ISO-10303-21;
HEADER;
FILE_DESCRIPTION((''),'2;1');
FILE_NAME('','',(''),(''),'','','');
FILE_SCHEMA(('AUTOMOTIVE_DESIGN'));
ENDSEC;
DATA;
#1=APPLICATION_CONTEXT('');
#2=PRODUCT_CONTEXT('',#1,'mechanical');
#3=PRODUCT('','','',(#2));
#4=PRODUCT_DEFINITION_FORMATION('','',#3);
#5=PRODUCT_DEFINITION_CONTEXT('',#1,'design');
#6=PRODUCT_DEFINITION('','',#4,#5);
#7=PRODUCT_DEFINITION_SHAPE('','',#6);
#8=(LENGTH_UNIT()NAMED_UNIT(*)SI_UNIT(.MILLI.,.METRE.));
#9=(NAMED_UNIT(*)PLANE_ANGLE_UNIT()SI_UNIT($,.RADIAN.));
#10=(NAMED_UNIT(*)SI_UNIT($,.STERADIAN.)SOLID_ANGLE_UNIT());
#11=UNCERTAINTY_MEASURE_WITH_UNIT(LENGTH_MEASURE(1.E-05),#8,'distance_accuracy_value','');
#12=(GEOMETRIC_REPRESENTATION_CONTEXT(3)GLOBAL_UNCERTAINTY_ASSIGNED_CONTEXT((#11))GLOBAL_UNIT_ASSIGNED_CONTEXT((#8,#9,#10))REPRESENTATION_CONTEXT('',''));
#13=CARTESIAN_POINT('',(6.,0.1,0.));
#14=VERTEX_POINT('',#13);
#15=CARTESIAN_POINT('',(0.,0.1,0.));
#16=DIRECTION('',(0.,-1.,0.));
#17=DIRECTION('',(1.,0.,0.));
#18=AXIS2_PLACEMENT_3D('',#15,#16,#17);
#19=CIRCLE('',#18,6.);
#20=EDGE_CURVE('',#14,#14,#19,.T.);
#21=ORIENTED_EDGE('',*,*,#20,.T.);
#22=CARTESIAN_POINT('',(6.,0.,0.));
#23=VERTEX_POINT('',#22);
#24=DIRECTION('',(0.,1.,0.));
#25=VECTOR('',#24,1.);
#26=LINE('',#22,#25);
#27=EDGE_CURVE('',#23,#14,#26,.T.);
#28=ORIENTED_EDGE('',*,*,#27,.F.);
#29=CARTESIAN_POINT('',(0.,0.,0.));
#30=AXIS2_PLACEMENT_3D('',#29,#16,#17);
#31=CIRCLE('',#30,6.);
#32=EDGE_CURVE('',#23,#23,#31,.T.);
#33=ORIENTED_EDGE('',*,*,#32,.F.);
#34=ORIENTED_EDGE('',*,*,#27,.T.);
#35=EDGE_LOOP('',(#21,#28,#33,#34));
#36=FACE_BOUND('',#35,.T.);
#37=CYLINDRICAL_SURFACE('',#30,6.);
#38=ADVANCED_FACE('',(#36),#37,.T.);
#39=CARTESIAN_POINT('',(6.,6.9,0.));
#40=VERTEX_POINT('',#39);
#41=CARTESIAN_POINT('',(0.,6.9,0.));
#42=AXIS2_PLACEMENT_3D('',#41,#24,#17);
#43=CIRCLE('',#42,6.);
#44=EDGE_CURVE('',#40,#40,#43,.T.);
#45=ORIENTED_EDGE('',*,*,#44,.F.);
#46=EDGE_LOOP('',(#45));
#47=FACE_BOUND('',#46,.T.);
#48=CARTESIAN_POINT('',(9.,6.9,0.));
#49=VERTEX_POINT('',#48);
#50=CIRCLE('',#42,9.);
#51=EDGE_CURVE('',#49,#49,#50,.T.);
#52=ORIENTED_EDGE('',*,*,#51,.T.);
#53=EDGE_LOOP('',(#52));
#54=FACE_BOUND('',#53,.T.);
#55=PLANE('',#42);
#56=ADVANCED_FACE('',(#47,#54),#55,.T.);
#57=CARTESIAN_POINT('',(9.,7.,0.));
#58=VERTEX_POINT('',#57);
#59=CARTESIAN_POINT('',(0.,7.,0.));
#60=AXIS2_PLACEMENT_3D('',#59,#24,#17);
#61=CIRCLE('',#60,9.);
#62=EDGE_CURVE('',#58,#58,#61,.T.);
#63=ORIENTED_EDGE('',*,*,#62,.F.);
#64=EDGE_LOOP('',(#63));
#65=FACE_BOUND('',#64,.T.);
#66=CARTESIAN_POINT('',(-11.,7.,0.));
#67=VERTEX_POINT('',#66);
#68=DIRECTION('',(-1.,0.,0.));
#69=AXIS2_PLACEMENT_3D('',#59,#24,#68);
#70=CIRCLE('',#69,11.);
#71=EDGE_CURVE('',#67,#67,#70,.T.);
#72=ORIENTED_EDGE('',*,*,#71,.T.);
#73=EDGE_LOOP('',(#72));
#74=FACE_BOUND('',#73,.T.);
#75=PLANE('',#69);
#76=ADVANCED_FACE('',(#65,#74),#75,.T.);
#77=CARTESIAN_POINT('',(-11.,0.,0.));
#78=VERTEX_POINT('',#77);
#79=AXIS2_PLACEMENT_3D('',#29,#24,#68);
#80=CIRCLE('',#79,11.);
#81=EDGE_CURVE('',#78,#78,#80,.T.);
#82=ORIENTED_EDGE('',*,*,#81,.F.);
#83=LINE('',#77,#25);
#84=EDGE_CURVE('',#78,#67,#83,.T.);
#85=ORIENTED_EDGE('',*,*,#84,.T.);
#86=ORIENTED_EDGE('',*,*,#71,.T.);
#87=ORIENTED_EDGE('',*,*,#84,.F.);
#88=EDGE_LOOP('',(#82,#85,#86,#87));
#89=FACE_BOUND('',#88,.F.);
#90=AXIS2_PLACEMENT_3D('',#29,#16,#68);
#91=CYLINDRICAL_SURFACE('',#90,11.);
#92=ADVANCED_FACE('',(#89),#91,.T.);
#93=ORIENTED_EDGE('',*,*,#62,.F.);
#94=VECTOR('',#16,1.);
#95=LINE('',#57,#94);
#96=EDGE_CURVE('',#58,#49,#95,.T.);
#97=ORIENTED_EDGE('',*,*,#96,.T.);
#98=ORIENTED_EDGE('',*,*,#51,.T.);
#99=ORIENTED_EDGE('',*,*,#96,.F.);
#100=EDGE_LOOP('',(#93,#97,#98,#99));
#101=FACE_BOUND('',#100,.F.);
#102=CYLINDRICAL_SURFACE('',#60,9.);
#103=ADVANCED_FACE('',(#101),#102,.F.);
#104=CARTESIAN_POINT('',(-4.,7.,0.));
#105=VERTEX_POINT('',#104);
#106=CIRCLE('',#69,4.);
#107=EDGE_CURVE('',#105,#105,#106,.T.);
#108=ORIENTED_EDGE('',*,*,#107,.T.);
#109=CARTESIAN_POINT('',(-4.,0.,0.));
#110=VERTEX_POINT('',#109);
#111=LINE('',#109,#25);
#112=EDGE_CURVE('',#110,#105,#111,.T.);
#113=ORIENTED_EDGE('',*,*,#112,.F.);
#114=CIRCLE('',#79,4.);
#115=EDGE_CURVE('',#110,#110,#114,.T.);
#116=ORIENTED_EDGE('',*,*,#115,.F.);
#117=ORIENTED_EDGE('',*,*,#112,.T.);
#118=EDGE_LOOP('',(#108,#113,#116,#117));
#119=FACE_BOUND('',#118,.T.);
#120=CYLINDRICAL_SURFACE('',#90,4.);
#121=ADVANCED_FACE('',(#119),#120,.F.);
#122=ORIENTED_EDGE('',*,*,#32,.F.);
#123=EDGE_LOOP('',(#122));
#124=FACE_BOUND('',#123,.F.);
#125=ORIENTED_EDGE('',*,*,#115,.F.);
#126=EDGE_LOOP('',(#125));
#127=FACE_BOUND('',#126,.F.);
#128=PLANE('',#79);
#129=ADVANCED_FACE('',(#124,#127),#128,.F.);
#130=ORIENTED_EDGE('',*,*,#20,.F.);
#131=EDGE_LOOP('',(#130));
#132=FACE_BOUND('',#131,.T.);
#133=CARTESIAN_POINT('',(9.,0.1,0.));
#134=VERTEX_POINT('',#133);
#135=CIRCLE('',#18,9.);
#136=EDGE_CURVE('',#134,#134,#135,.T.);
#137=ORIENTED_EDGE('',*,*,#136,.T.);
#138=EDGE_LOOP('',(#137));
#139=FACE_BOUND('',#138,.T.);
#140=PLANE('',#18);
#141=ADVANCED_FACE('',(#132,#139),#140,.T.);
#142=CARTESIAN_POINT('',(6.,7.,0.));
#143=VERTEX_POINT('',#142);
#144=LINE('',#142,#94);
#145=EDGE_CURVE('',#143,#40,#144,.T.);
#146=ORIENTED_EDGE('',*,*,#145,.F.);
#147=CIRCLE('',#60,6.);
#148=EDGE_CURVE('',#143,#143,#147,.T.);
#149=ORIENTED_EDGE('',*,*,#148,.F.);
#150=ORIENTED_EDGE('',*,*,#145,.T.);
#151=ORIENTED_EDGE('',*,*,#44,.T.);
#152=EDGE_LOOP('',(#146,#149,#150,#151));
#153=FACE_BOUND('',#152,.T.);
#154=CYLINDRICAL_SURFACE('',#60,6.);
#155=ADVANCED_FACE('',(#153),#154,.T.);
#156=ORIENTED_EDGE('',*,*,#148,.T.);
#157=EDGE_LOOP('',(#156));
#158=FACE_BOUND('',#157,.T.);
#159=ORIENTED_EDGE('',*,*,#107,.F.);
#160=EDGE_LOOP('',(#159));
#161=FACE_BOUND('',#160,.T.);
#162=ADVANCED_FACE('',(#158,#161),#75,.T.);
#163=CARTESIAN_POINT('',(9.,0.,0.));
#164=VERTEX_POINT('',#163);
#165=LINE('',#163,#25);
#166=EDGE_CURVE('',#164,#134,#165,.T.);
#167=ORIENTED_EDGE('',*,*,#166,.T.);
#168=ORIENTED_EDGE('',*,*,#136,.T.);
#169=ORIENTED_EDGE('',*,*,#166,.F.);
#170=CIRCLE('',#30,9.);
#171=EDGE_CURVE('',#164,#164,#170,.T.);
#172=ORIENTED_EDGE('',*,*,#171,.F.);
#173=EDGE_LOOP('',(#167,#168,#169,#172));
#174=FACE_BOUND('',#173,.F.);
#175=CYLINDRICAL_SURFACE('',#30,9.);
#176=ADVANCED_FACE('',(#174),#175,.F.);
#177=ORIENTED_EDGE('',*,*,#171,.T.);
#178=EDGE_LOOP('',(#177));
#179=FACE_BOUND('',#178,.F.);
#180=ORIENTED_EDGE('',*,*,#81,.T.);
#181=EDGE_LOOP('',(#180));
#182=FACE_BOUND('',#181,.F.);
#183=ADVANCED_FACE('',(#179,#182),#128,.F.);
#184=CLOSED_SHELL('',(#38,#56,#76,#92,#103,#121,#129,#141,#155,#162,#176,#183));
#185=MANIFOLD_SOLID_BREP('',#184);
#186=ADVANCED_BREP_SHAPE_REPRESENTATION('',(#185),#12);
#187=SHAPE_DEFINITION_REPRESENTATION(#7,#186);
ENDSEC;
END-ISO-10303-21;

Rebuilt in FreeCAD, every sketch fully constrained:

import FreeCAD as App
import Part
import Sketcher

V = App.Vector
Q = App.Units.Quantity

doc = App.newDocument("Part")
body = doc.addObject("PartDesign::Body", "Body")

sketch1 = doc.addObject("Sketcher::SketchObject", "Sketch")
body.addObject(sketch1)
sketch1.AttachmentSupport = (doc.XZ_Plane, [""])
sketch1.MapMode = "FlatFace"
sketch1.addGeometry([
    Part.Circle(V(0, 0, 0), V(0, 0, 1), 11),
    Part.Circle(V(0, 0, 0), V(0, 0, 1), 4),
], False)
sketch1.addConstraint([
    Sketcher.Constraint("Coincident", 0, 3, -1, 1),
    Sketcher.Constraint("Coincident", 1, 3, -1, 1),
    Sketcher.Constraint("Diameter", 0, Q("22 mm")),
    Sketcher.Constraint("Diameter", 1, Q("8 mm")),
])
pad1 = doc.addObject("PartDesign::Pad", "Pad")
body.addObject(pad1)
pad1.Profile = sketch1
pad1.Length = 7
pad1.Reversed = True

sketch2 = doc.addObject("Sketcher::SketchObject", "Sketch001")
body.addObject(sketch2)
sketch2.AttachmentSupport = (doc.XZ_Plane, [""])
sketch2.MapMode = "FlatFace"
sketch2.AttachmentOffset = App.Placement(V(0, 0, -7), App.Rotation())
sketch2.addGeometry([
    Part.Circle(V(0, 0, 0), V(0, 0, 1), 9),
    Part.Circle(V(0, 0, 0), V(0, 0, 1), 6),
], False)
sketch2.addConstraint([
    Sketcher.Constraint("Coincident", 0, 3, -1, 1),
    Sketcher.Constraint("Coincident", 1, 3, -1, 1),
    Sketcher.Constraint("Diameter", 0, Q("18 mm")),
    Sketcher.Constraint("Diameter", 1, Q("12 mm")),
])
pocket1 = doc.addObject("PartDesign::Pocket", "Pocket")
body.addObject(pocket1)
pocket1.Profile = sketch2
pocket1.Length = 0.1
pocket1.Reversed = True

sketch3 = doc.addObject("Sketcher::SketchObject", "Sketch002")
body.addObject(sketch3)
sketch3.AttachmentSupport = (doc.XZ_Plane, [""])
sketch3.MapMode = "FlatFace"
sketch3.addGeometry([
    Part.Circle(V(0, 0, 0), V(0, 0, 1), 9),
    Part.Circle(V(0, 0, 0), V(0, 0, 1), 6),
], False)
sketch3.addConstraint([
    Sketcher.Constraint("Coincident", 0, 3, -1, 1),
    Sketcher.Constraint("Coincident", 1, 3, -1, 1),
    Sketcher.Constraint("Diameter", 0, Q("18 mm")),
    Sketcher.Constraint("Diameter", 1, Q("12 mm")),
])
pocket2 = doc.addObject("PartDesign::Pocket", "Pocket001")
body.addObject(pocket2)
pocket2.Profile = sketch3
pocket2.Length = 0.1

doc.recompute()
